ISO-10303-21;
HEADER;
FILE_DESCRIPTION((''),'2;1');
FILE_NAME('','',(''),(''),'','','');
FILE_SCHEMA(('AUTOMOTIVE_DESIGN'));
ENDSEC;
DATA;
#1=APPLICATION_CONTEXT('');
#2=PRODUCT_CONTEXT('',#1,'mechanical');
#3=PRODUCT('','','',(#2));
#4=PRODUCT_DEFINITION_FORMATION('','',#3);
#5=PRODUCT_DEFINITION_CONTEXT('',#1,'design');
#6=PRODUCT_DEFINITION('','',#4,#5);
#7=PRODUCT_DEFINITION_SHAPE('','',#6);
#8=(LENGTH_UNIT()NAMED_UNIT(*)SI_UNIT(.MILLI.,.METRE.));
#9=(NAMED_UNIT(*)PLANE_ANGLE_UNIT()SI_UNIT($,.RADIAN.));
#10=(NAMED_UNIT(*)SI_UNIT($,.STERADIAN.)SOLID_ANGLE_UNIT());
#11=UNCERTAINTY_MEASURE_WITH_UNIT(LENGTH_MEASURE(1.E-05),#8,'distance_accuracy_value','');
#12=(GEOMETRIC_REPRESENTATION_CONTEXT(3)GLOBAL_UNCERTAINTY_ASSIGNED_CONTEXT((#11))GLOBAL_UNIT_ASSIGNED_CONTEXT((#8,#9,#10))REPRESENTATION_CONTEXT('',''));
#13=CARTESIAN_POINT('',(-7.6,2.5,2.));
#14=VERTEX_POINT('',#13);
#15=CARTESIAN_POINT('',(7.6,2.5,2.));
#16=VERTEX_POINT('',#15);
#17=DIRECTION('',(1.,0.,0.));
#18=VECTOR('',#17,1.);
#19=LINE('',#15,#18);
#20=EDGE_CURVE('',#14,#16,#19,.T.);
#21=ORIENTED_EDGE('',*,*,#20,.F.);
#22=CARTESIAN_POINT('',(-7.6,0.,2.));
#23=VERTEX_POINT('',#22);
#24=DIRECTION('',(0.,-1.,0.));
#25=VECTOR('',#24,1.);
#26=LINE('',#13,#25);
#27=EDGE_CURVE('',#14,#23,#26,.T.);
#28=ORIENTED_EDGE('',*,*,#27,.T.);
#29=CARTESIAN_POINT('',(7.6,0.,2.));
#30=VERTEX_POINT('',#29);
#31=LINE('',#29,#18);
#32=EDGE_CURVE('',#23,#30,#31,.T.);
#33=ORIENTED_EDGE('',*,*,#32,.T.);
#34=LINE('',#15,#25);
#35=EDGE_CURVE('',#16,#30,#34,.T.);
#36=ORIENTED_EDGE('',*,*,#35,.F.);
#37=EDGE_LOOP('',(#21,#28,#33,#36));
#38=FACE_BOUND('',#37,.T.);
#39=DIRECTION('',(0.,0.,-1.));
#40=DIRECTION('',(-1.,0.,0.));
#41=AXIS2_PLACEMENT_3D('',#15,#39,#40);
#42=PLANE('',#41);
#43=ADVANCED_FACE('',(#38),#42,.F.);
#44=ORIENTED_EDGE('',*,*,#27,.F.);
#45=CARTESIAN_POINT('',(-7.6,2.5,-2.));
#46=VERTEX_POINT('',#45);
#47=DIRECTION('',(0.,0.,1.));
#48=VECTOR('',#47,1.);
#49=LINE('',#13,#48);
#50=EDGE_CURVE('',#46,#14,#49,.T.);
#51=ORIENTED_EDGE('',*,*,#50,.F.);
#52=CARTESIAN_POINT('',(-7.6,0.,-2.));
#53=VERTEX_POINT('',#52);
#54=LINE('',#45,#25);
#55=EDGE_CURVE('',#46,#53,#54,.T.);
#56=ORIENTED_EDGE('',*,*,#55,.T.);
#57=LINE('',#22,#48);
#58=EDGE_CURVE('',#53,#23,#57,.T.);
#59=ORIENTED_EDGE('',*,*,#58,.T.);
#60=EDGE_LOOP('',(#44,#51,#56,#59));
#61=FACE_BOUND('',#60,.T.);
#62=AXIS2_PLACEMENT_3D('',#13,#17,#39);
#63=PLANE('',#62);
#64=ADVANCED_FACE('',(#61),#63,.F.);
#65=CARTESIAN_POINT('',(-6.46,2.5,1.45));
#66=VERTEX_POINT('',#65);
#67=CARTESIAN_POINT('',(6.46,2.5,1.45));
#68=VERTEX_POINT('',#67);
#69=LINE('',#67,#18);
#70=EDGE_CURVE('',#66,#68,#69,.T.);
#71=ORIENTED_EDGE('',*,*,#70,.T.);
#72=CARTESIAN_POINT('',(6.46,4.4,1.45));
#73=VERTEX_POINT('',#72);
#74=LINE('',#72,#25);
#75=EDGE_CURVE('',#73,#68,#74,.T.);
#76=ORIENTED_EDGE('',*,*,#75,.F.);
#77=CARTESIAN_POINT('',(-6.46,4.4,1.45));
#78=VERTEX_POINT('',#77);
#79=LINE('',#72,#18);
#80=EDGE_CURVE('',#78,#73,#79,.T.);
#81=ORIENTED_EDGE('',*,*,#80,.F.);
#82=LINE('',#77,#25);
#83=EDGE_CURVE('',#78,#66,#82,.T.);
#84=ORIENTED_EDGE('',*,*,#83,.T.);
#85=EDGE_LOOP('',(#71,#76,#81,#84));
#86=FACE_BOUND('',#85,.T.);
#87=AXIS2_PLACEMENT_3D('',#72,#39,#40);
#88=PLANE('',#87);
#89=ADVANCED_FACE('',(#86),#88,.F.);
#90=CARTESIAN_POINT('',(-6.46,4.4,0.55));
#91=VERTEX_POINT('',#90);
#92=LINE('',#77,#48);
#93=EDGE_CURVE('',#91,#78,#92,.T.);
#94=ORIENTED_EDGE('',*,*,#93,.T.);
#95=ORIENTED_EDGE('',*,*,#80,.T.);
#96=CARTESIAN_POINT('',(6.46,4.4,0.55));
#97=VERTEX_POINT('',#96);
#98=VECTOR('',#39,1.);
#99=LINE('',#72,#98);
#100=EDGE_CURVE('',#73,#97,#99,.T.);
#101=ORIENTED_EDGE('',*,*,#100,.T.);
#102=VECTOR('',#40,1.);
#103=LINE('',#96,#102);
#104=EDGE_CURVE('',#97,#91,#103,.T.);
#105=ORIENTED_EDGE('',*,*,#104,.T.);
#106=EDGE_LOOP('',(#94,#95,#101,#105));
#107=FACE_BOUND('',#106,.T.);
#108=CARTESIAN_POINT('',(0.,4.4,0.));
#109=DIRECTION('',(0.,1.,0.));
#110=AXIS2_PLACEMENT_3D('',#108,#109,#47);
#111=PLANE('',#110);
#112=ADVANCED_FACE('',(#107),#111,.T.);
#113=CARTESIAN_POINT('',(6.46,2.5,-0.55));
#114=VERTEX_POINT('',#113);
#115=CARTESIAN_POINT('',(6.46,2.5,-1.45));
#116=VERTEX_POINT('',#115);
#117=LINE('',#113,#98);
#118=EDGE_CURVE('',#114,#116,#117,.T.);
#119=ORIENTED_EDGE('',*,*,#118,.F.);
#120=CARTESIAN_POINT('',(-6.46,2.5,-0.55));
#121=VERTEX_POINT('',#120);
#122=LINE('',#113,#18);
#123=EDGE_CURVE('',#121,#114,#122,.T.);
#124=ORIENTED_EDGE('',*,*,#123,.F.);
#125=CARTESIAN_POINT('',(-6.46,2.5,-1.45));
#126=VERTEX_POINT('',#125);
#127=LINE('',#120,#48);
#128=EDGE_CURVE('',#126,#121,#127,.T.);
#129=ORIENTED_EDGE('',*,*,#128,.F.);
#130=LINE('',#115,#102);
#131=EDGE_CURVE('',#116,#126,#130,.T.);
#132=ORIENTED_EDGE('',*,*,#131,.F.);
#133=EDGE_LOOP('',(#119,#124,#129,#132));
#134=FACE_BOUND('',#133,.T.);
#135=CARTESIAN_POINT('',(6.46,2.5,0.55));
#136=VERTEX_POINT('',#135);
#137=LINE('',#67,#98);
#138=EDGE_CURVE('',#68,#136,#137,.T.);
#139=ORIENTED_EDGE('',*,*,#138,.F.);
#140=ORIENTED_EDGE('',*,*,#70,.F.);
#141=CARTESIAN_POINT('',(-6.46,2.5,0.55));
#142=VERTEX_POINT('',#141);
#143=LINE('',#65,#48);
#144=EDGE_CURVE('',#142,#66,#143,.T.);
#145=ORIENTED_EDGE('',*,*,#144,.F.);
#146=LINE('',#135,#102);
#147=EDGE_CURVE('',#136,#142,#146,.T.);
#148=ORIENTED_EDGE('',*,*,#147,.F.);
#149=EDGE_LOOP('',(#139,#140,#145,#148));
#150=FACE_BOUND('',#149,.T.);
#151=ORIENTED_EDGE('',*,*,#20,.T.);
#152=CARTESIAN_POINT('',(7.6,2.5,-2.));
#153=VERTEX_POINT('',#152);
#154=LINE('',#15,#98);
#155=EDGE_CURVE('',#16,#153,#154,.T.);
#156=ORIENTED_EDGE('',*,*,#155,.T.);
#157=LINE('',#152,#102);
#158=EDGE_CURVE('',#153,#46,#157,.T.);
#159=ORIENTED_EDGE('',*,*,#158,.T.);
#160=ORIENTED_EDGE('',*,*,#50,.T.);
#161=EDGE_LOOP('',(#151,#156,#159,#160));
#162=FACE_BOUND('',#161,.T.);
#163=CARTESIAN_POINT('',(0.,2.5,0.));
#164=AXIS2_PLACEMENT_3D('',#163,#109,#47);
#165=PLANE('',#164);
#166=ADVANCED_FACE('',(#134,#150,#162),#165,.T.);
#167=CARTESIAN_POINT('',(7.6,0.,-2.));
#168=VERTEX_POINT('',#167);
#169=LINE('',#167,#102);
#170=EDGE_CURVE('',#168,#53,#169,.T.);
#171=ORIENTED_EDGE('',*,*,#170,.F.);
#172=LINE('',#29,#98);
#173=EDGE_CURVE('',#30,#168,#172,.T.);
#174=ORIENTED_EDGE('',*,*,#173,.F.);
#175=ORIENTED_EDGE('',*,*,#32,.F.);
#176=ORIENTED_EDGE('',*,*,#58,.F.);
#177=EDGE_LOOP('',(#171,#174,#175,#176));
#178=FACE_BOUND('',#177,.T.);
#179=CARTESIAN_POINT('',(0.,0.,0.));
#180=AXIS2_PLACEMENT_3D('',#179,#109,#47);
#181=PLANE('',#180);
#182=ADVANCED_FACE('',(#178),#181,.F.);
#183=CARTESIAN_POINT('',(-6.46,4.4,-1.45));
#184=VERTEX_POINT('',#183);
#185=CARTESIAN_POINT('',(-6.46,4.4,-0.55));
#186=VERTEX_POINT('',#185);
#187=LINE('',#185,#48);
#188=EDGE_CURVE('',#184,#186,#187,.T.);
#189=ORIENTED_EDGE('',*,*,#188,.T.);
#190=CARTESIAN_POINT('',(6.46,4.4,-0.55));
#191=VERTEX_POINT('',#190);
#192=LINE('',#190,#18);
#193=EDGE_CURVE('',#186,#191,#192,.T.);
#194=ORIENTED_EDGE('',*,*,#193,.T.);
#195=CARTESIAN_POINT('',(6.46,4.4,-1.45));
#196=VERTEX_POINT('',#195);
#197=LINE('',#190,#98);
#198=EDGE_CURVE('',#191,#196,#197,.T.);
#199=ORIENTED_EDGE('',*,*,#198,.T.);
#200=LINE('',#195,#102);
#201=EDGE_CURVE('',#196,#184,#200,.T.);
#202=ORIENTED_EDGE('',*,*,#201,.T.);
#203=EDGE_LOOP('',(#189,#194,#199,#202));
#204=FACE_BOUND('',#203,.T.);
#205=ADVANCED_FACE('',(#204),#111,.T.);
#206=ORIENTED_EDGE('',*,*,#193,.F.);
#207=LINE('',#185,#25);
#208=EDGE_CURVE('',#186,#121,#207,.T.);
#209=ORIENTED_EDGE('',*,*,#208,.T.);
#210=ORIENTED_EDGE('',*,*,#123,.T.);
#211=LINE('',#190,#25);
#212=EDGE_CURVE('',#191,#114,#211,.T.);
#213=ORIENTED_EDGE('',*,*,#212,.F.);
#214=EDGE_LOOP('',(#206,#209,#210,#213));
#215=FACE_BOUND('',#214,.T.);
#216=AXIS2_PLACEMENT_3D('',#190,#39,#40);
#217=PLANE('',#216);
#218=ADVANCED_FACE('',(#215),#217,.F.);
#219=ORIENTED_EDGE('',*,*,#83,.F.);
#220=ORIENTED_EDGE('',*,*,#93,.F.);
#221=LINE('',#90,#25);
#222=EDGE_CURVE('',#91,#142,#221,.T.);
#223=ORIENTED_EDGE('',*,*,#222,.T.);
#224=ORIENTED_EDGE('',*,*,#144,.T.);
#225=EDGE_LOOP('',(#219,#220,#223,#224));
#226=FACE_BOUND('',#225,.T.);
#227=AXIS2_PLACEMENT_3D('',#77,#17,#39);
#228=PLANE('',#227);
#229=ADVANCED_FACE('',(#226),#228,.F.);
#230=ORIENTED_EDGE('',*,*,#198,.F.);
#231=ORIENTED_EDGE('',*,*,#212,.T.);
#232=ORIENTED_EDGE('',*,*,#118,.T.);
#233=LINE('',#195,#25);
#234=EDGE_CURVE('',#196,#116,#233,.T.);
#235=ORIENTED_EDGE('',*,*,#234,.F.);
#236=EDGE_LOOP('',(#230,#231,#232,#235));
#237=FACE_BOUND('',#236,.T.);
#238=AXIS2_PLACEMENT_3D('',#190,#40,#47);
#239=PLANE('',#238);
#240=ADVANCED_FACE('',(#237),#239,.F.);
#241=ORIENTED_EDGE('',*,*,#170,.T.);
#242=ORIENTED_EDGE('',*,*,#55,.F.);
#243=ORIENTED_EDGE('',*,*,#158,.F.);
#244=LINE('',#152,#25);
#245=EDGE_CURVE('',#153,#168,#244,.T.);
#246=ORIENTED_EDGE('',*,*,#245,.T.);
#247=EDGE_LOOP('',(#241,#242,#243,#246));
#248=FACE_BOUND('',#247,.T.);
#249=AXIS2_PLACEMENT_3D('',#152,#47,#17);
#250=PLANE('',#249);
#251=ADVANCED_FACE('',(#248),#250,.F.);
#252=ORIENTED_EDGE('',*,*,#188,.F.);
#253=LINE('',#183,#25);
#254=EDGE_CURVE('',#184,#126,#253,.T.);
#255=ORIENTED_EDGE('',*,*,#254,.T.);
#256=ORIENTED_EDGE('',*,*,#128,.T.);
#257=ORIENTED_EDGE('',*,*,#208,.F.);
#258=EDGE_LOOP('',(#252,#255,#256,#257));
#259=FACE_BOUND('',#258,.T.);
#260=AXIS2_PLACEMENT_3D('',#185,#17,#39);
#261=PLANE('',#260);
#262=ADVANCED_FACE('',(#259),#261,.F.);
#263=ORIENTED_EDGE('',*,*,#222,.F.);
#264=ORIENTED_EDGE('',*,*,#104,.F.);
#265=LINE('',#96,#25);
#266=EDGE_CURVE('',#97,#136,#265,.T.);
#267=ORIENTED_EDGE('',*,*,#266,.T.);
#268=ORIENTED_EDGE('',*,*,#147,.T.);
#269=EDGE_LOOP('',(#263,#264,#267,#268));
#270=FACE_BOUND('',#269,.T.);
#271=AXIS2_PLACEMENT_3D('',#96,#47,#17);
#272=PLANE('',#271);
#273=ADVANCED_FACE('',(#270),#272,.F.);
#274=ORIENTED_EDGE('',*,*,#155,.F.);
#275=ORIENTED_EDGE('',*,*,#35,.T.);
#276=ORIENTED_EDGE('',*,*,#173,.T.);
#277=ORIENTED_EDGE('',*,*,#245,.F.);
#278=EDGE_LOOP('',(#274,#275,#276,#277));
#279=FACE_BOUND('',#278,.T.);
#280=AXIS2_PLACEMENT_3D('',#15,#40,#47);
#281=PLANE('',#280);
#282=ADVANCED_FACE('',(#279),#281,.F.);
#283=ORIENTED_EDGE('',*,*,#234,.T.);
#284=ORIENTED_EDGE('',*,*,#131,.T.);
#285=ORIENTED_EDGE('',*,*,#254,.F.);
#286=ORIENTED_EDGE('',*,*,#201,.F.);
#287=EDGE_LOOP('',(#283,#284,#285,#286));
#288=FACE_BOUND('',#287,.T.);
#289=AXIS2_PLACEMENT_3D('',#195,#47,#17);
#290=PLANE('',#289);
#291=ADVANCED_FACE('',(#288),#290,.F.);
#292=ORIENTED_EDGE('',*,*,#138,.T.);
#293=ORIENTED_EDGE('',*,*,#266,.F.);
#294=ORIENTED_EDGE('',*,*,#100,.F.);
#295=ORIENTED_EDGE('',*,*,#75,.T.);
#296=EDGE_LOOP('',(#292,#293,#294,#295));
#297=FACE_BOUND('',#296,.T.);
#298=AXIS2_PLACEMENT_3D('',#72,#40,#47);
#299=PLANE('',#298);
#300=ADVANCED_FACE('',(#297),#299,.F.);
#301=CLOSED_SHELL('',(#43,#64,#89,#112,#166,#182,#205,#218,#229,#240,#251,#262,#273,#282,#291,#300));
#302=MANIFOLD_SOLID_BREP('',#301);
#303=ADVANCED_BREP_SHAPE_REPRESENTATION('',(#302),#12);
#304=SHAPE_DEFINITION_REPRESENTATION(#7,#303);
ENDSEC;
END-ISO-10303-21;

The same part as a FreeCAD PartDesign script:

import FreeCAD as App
import Part
import Sketcher

V = App.Vector

doc = App.newDocument("Part")
body = doc.addObject("PartDesign::Body", "Body")

sketch1 = body.newObject("Sketcher::SketchObject", "Sketch")
sketch1.AttachmentSupport = (doc.getObject("XZ_Plane"), [""])
sketch1.MapMode = "FlatFace"
sketch1.addGeometry([
    Part.LineSegment(V(-7.6, -2, 0), V(-7.6, 2, 0)),
    Part.LineSegment(V(-7.6, 2, 0), V(7.6, 2, 0)),
    Part.LineSegment(V(7.6, 2, 0), V(7.6, -2, 0)),
    Part.LineSegment(V(7.6, -2, 0), V(-7.6, -2, 0)),
], False)
sketch1.addConstraint([
    Sketcher.Constraint("Coincident", 0, 2, 1, 1),
    Sketcher.Constraint("Coincident", 1, 2, 2, 1),
    Sketcher.Constraint("Coincident", 2, 2, 3, 1),
    Sketcher.Constraint("Coincident", 3, 2, 0, 1),
    Sketcher.Constraint("Vertical", 0),
    Sketcher.Constraint("Horizontal", 1),
    Sketcher.Constraint("Vertical", 2),
    Sketcher.Constraint("Horizontal", 3),
    Sketcher.Constraint("Symmetric", 0, 2, 2, 2, -1, 1),
    Sketcher.Constraint("DistanceY", 0, 1, 0, 2, 4.0),
    Sketcher.Constraint("DistanceX", 1, 1, 1, 2, 15.2),
])
pad1 = body.newObject("PartDesign::Pad", "Pad")
pad1.Profile = sketch1
pad1.Length = 2.5
pad1.Reversed = True

sketch2 = body.newObject("Sketcher::SketchObject", "Sketch001")
sketch2.AttachmentSupport = (doc.getObject("XZ_Plane"), [""])
sketch2.MapMode = "FlatFace"
sketch2.AttachmentOffset = App.Placement(V(0, 0, -2.5), App.Rotation())
sketch2.addGeometry([
    Part.LineSegment(V(-6.46, 0.55, 0), V(-6.46, 1.45, 0)),
    Part.LineSegment(V(-6.46, 1.45, 0), V(6.46, 1.45, 0)),
    Part.LineSegment(V(6.46, 1.45, 0), V(6.46, 0.55, 0)),
    Part.LineSegment(V(6.46, 0.55, 0), V(-6.46, 0.55, 0)),
    Part.LineSegment(V(-6.46, -1.45, 0), V(-6.46, -0.55, 0)),
    Part.LineSegment(V(-6.46, -0.55, 0), V(6.46, -0.55, 0)),
    Part.LineSegment(V(6.46, -0.55, 0), V(6.46, -1.45, 0)),
    Part.LineSegment(V(6.46, -1.45, 0), V(-6.46, -1.45, 0)),
], False)
sketch2.addConstraint([
    Sketcher.Constraint("Coincident", 0, 2, 1, 1),
    Sketcher.Constraint("Coincident", 1, 2, 2, 1),
    Sketcher.Constraint("Coincident", 2, 2, 3, 1),
    Sketcher.Constraint("Coincident", 3, 2, 0, 1),
    Sketcher.Constraint("Coincident", 4, 2, 5, 1),
    Sketcher.Constraint("Coincident", 5, 2, 6, 1),
    Sketcher.Constraint("Coincident", 6, 2, 7, 1),
    Sketcher.Constraint("Coincident", 7, 2, 4, 1),
    Sketcher.Constraint("Vertical", 0),
    Sketcher.Constraint("Horizontal", 1),
    Sketcher.Constraint("Vertical", 2),
    Sketcher.Constraint("Horizontal", 3),
    Sketcher.Constraint("Vertical", 4),
    Sketcher.Constraint("Horizontal", 5),
    Sketcher.Constraint("Vertical", 6),
    Sketcher.Constraint("Horizontal", 7),
    Sketcher.Constraint("Symmetric", 2, 2, 4, 2, -1, 1),
    Sketcher.Constraint("Symmetric", 0, 2, 6, 2, -1, 1),
    Sketcher.Constraint("Vertical", 3, 2, 4, 2),
    Sketcher.Constraint("DistanceY", 0, 1, 0, 2, 0.9),
    Sketcher.Constraint("DistanceY", 4, 2, 0, 2, 2.0),
    Sketcher.Constraint("DistanceX", 1, 1, 1, 2, 12.92),
])
pad2 = body.newObject("PartDesign::Pad", "Pad001")
pad2.Profile = sketch2
pad2.Length = 1.9
pad2.Reversed = True

doc.recompute()
